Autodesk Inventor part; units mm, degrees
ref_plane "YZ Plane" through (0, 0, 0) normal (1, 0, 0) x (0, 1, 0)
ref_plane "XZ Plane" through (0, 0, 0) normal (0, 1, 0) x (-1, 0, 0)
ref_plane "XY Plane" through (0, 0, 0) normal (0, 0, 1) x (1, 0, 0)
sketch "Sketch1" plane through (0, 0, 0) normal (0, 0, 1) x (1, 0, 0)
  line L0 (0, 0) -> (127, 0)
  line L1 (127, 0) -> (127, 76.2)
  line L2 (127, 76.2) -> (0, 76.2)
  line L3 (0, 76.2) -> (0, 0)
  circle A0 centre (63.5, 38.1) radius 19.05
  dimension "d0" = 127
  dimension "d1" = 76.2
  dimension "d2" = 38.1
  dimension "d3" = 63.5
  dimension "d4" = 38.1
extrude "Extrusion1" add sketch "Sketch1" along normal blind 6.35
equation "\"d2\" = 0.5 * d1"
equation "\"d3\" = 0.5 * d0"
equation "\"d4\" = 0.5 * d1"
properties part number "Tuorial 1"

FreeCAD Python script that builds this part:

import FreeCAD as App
import Part
import Sketcher
Q = App.Units.Quantity


def add_polygon(sketch, points):
    """Adds a closed chain of lines whose ends are joined by coincident constraints."""
    first, n = sketch.GeometryCount, len(points)
    for a, b in zip(points, points[1:] + points[:1]):
        sketch.addGeometry(Part.LineSegment(App.Vector(*a, 0), App.Vector(*b, 0)), False)
    for i in range(n):
        sketch.addConstraint(Sketcher.Constraint("Coincident", first + i, 2, first + (i + 1) % n, 1))

doc = App.newDocument("Part")
body = doc.addObject("PartDesign::Body", "Body")

# Sketch on XY plane
sketch1 = doc.addObject("Sketcher::SketchObject", "Sketch")
body.addObject(sketch1)
sketch1.AttachmentSupport = (doc.XY_Plane, [""])
sketch1.MapMode = "FlatFace"
add_polygon(sketch1, [(0, 76.2), (0, 0), (127, 0), (127, 76.2)])  # lines 0-3
sketch1.addGeometry(Part.Circle(App.Vector(63.5, 38.1, 0), App.Vector(0, 0, 1), 19.05), False)  # 4
sketch1.addConstraint(Sketcher.Constraint("Vertical", 0))
sketch1.addConstraint(Sketcher.Constraint("Horizontal", 1))
sketch1.addConstraint(Sketcher.Constraint("Vertical", 2))
sketch1.addConstraint(Sketcher.Constraint("Horizontal", 3))
sketch1.addConstraint(Sketcher.Constraint("Coincident", 0, 2, -1, 1))
sketch1.addConstraint(Sketcher.Constraint("Diameter", 4, Q("1.5 in")))
sketch1.addConstraint(Sketcher.Constraint("DistanceX", 1, 1, 1, 2, Q("5 in")))
sketch1.addConstraint(Sketcher.Constraint("DistanceY", 0, 2, 0, 1, Q("3 in")))
sketch1.addConstraint(Sketcher.Constraint("DistanceX", -1, 1, 4, 3, Q("2.5 in")))
sketch1.addConstraint(Sketcher.Constraint("DistanceY", -1, 1, 4, 3, Q("1.5 in")))
pad1 = doc.addObject("PartDesign::Pad", "Pad")
body.addObject(pad1)
pad1.Profile = sketch1
pad1.Length = Q("0.25 in")

doc.recompute()
